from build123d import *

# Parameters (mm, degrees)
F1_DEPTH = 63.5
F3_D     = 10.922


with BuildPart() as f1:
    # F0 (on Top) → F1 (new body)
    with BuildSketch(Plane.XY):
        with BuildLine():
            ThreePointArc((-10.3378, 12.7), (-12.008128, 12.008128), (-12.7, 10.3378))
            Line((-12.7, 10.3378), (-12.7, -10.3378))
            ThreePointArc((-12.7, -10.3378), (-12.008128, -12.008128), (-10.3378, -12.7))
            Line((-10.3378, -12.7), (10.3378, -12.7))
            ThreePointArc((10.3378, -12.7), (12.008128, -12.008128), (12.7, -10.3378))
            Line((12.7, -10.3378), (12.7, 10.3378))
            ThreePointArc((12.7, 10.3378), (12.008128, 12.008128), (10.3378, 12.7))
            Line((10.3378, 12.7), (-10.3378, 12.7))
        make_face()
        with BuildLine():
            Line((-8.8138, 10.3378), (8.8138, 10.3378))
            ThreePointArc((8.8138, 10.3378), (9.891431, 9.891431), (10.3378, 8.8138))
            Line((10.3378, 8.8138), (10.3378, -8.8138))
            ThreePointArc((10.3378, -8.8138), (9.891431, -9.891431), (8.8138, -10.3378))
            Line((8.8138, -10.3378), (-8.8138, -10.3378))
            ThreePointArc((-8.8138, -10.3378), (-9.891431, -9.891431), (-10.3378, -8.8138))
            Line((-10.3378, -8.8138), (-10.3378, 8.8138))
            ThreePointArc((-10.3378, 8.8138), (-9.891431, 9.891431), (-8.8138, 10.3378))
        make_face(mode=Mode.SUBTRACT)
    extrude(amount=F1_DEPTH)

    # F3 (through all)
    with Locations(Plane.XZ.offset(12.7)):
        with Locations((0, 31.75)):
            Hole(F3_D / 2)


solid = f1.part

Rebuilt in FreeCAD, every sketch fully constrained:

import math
import FreeCAD as App
import Part
import Sketcher
from FreeCAD import Vector
Q = App.Units.Quantity

doc = App.newDocument("Part")
body = doc.addObject("PartDesign::Body", "Body")

sketch1 = body.newObject("Sketcher::SketchObject", "Sketch")
sketch1.AttachmentSupport = (doc.getObject("XY_Plane"), [""])
sketch1.MapMode = "FlatFace"
sketch1.addGeometry([
    Part.ArcOfCircle(Part.Circle(Vector(-10.337801, 10.337801, 0), Vector(0, 0, 1), 2.362199), math.radians(89.99997), math.radians(180.00003)),
    Part.LineSegment(Vector(-12.7, 10.3378, 0), Vector(-12.7, -10.3378, 0)),
    Part.ArcOfCircle(Part.Circle(Vector(-10.337801, -10.337801, 0), Vector(0, 0, 1), 2.362199), math.radians(179.99997), math.radians(270.00003)),
    Part.LineSegment(Vector(-10.3378, -12.7, 0), Vector(10.3378, -12.7, 0)),
    Part.ArcOfCircle(Part.Circle(Vector(10.337801, -10.337801, 0), Vector(0, 0, 1), 2.362199), math.radians(-90.00003), math.radians(0.00003)),
    Part.LineSegment(Vector(12.7, -10.3378, 0), Vector(12.7, 10.3378, 0)),
    Part.ArcOfCircle(Part.Circle(Vector(10.337801, 10.337801, 0), Vector(0, 0, 1), 2.362199), math.radians(-0.00003), math.radians(90.00003)),
    Part.LineSegment(Vector(10.3378, 12.7, 0), Vector(-10.3378, 12.7, 0)),
    Part.ArcOfCircle(Part.Circle(Vector(-8.813801, 8.813801, 0), Vector(0, 0, 1), 1.523999), math.radians(89.999966), math.radians(180.000034)),
    Part.LineSegment(Vector(-8.8138, 10.3378, 0), Vector(8.8138, 10.3378, 0)),
    Part.ArcOfCircle(Part.Circle(Vector(8.813801, 8.813801, 0), Vector(0, 0, 1), 1.523999), math.radians(-0.000034), math.radians(90.000034)),
    Part.LineSegment(Vector(10.3378, 8.8138, 0), Vector(10.3378, -8.8138, 0)),
    Part.ArcOfCircle(Part.Circle(Vector(8.813801, -8.813801, 0), Vector(0, 0, 1), 1.523999), math.radians(-90.000034), math.radians(0.000034)),
    Part.LineSegment(Vector(8.8138, -10.3378, 0), Vector(-8.8138, -10.3378, 0)),
    Part.ArcOfCircle(Part.Circle(Vector(-8.813801, -8.813801, 0), Vector(0, 0, 1), 1.523999), math.radians(179.999966), math.radians(270.000034)),
    Part.LineSegment(Vector(-10.3378, -8.8138, 0), Vector(-10.3378, 8.8138, 0)),
], False)
sketch1.addConstraint([
    Sketcher.Constraint("Tangent", 0, 2, 1, 1),
    Sketcher.Constraint("Tangent", 1, 2, 2, 1),
    Sketcher.Constraint("Tangent", 2, 2, 3, 1),
    Sketcher.Constraint("Tangent", 3, 2, 4, 1),
    Sketcher.Constraint("Tangent", 4, 2, 5, 1),
    Sketcher.Constraint("Tangent", 5, 2, 6, 1),
    Sketcher.Constraint("Tangent", 6, 2, 7, 1),
    Sketcher.Constraint("Tangent", 7, 2, 0, 1),
    Sketcher.Constraint("Tangent", 8, 1, 9, 1),
    Sketcher.Constraint("Tangent", 9, 2, 10, 2),
    Sketcher.Constraint("Tangent", 10, 1, 11, 1),
    Sketcher.Constraint("Tangent", 11, 2, 12, 2),
    Sketcher.Constraint("Tangent", 12, 1, 13, 1),
    Sketcher.Constraint("Tangent", 13, 2, 14, 2),
    Sketcher.Constraint("Tangent", 14, 1, 15, 1),
    Sketcher.Constraint("Tangent", 15, 2, 8, 2),
    Sketcher.Constraint("Vertical", 1),
    Sketcher.Constraint("Horizontal", 3),
    Sketcher.Constraint("Vertical", 5),
    Sketcher.Constraint("Horizontal", 7),
    Sketcher.Constraint("Horizontal", 9),
    Sketcher.Constraint("Vertical", 11),
    Sketcher.Constraint("Horizontal", 13),
    Sketcher.Constraint("Vertical", 15),
    Sketcher.Constraint("Equal", 0, 2),
    Sketcher.Constraint("Equal", 2, 4),
    Sketcher.Constraint("Equal", 4, 6),
    Sketcher.Constraint("Equal", 8, 10),
    Sketcher.Constraint("Equal", 10, 12),
    Sketcher.Constraint("Equal", 12, 14),
    Sketcher.Constraint("Symmetric", 0, 3, 4, 3, -1, 1),
    Sketcher.Constraint("Symmetric", 8, 3, 12, 3, -1, 1),
    Sketcher.Constraint("Horizontal", 5, 2, 8, 1),
    Sketcher.Constraint("Vertical", 6, 2, 10, 1),
    Sketcher.Constraint("Equal", 7, 1),
    Sketcher.Constraint("Radius", 8, Q("0.06 in")),
    Sketcher.Constraint("Radius", 0, Q("0.093 in")),
    Sketcher.Constraint("DistanceX", 0, 2, -1, 1, Q("0.5 in")),
])
pad1 = body.newObject("PartDesign::Pad", "Pad")
pad1.Profile = sketch1
pad1.Length = Q("2.5 in")

sketch2 = body.newObject("Sketcher::SketchObject", "Sketch001")
sketch2.AttachmentSupport = (doc.getObject("XZ_Plane"), [""])
sketch2.MapMode = "FlatFace"
sketch2.AttachmentOffset = App.Placement(Vector(0, 0, 0.5 * 25.4), App.Rotation())
sketch2.addGeometry(Part.Circle(Vector(0, 31.75, 0), Vector(0, 0, 1), 5.461), False)
sketch2.addConstraint([
    Sketcher.Constraint("PointOnObject", 0, 3, -2),
    Sketcher.Constraint("Diameter", 0, Q("0.43 in")),
    Sketcher.Constraint("DistanceY", -1, 1, 0, 3, Q("1.25 in")),
])
doc.recompute()
hole = body.newObject("PartDesign::Hole", "Hole")
hole.Profile = sketch2
hole.ThreadType = "None"
hole.Diameter = Q("0.43 in")
hole.DepthType = "ThroughAll"

doc.recompute()
